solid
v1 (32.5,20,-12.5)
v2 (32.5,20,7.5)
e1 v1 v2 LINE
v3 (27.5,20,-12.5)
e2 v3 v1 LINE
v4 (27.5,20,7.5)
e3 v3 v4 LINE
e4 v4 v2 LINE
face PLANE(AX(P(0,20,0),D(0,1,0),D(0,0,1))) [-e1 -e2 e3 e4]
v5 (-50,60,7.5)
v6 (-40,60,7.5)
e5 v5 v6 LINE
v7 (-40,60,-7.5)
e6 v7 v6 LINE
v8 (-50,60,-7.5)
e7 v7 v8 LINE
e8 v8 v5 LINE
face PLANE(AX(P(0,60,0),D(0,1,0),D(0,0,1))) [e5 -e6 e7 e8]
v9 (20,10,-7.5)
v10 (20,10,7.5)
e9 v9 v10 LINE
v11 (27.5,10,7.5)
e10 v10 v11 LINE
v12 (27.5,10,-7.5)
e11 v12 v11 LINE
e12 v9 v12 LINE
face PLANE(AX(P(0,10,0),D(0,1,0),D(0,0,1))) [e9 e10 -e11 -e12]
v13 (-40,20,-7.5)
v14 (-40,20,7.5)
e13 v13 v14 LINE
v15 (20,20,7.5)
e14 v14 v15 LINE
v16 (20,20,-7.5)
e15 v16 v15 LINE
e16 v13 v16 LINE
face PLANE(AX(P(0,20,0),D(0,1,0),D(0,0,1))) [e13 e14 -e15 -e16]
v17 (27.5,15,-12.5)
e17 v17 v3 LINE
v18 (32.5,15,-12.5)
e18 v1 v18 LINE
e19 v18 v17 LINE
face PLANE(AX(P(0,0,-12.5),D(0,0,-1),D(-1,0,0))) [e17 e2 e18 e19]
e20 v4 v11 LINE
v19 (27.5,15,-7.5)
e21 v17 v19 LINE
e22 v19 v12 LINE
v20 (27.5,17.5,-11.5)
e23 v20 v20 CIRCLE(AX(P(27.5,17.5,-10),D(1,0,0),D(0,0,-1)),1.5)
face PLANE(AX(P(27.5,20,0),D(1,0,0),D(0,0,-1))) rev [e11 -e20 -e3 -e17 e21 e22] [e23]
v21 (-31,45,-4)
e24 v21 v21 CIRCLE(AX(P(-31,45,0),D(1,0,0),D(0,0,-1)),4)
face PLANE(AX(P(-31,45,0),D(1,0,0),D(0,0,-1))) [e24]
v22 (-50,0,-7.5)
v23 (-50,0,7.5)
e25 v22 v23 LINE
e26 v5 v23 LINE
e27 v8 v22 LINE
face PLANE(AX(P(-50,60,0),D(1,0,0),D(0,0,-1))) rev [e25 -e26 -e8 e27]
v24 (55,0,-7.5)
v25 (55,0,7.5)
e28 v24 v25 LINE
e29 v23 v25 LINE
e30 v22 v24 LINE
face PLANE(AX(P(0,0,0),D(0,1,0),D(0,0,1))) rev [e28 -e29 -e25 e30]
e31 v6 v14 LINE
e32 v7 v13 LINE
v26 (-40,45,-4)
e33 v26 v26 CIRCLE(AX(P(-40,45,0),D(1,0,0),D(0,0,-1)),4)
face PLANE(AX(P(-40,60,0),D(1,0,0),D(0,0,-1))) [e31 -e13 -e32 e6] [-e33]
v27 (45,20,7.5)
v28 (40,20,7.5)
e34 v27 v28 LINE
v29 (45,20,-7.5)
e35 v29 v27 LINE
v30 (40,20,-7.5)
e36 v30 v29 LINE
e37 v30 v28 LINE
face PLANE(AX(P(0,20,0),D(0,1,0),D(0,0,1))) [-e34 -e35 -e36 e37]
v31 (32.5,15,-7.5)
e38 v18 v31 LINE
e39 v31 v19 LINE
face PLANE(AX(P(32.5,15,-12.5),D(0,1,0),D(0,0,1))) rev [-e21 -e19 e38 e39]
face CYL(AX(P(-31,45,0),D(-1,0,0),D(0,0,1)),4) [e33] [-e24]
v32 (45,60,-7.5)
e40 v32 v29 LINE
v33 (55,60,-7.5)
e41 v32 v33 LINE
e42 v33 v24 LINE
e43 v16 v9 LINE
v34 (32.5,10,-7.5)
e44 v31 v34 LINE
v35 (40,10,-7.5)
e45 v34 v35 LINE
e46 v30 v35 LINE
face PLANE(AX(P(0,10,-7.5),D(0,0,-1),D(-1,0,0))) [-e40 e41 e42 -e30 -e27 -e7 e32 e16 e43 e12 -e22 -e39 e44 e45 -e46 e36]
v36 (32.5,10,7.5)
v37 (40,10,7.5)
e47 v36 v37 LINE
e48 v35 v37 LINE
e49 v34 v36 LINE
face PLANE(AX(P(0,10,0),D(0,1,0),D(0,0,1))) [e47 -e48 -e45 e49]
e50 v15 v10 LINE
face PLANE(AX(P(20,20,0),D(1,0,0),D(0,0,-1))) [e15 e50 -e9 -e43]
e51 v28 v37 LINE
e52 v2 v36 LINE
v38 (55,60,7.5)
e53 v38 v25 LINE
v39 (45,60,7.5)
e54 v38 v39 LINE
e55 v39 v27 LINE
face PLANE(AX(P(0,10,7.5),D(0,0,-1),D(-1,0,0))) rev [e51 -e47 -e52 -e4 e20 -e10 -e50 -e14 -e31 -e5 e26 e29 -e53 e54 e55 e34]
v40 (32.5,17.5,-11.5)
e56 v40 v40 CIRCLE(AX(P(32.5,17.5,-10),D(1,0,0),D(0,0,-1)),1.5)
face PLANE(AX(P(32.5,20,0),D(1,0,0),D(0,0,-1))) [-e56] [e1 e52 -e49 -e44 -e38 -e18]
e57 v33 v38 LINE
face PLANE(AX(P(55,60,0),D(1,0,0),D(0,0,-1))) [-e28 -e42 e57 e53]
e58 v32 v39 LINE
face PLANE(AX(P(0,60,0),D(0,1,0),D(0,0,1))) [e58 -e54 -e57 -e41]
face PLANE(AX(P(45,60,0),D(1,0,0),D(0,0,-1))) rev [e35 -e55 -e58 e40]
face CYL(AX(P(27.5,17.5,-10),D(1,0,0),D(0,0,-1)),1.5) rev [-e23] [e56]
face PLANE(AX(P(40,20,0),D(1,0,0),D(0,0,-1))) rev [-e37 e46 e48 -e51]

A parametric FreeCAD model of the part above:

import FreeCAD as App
import Part
import Sketcher

V = App.Vector
Q = App.Units.Quantity

doc = App.newDocument("Part")
body = doc.addObject("PartDesign::Body", "Body")

# Sketch on XZ plane
sketch1 = body.newObject("Sketcher::SketchObject", "Sketch")
sketch1.AttachmentSupport = (doc.getObject("XZ_Plane"), [""])
sketch1.MapMode = "FlatFace"
sketch1.addGeometry([
    Part.LineSegment(V(32, -8, 0), V(32, 8, 0)),
    Part.LineSegment(V(32, 8, 0), V(40, 8, 0)),
    Part.LineSegment(V(40, 8, 0), V(40, -8, 0)),
    Part.LineSegment(V(40, -8, 0), V(32, -8, 0)),
], False)
sketch1.addConstraint([
    Sketcher.Constraint("Coincident", 0, 2, 1, 1),
    Sketcher.Constraint("Coincident", 1, 2, 2, 1),
    Sketcher.Constraint("Coincident", 2, 2, 3, 1),
    Sketcher.Constraint("Coincident", 3, 2, 0, 1),
    Sketcher.Constraint("Vertical", 0),
    Sketcher.Constraint("Horizontal", 1),
    Sketcher.Constraint("Vertical", 2),
    Sketcher.Constraint("Horizontal", 3),
    Sketcher.Constraint("DistanceY", 0, 1, 0, 2, Q("15 mm")),
    Sketcher.Constraint("DistanceX", 1, 1, 1, 2, Q("7.5 mm")),
    Sketcher.Constraint("DistanceX", -1, 1, 1, 2, Q("40 mm")),
    Sketcher.Constraint("DistanceY", -1, 1, 0, 2, Q("7.5 mm")),
])
pad1 = body.newObject("PartDesign::Pad", "Pad")
pad1.Profile = sketch1
pad1.Length = 10
pad1.Reversed = True
body2 = doc.addObject("PartDesign::Body", "Body001")

# Sketch on XZ plane
sketch2 = body2.newObject("Sketcher::SketchObject", "Sketch001")
sketch2.AttachmentSupport = (doc.getObject("XZ_Plane001"), [""])
sketch2.MapMode = "FlatFace"
sketch2.addGeometry([
    Part.LineSegment(V(20, -8, 0), V(20, 8, 0)),
    Part.LineSegment(V(20, 8, 0), V(28, 8, 0)),
    Part.LineSegment(V(28, 8, 0), V(28, -8, 0)),
    Part.LineSegment(V(28, -8, 0), V(20, -8, 0)),
], False)
sketch2.addConstraint([
    Sketcher.Constraint("Coincident", 0, 2, 1, 1),
    Sketcher.Constraint("Coincident", 1, 2, 2, 1),
    Sketcher.Constraint("Coincident", 2, 2, 3, 1),
    Sketcher.Constraint("Coincident", 3, 2, 0, 1),
    Sketcher.Constraint("Vertical", 0),
    Sketcher.Constraint("Horizontal", 1),
    Sketcher.Constraint("Vertical", 2),
    Sketcher.Constraint("Horizontal", 3),
    Sketcher.Constraint("DistanceY", 0, 1, 0, 2, Q("15 mm")),
    Sketcher.Constraint("DistanceX", 1, 1, 1, 2, Q("7.5 mm")),
    Sketcher.Constraint("DistanceX", -1, 1, 0, 2, Q("20 mm")),
    Sketcher.Constraint("DistanceY", -1, 1, 0, 2, Q("7.5 mm")),
])
pad2 = body2.newObject("PartDesign::Pad", "Pad001")
pad2.Profile = sketch2
pad2.Length = 10
pad2.Reversed = True
body.AllowCompound = True
doc.recompute()

boolean = body.newObject("PartDesign::Boolean", "Boolean")
boolean.Type = "Fuse"
boolean.addObjects([body2])

# Sketch on XZ plane
sketch3 = body.newObject("Sketcher::SketchObject", "Sketch002")
sketch3.AttachmentSupport = (doc.getObject("XZ_Plane"), [""])
sketch3.MapMode = "FlatFace"
sketch3.addGeometry([
    Part.LineSegment(V(28, -8, 0), V(28, 8, 0)),  # 0
    Part.LineSegment(V(28, 8, 0), V(32, 8, 0)),  # 1
    Part.LineSegment(V(32, 8, 0), V(32, -8, 0)),  # 2
    Part.LineSegment(V(32, -8, 0), V(28, -8, 0)),  # 3
    Part.LineSegment(V(-40, -8, 0), V(-40, 8, 0)),  # 4
    Part.LineSegment(V(-40, 8, 0), V(20, 8, 0)),  # 5
    Part.LineSegment(V(20, 8, 0), V(20, -8, 0)),  # 6
    Part.LineSegment(V(20, -8, 0), V(-40, -8, 0)),  # 7
    Part.LineSegment(V(40, -8, 0), V(40, 8, 0)),  # 8
    Part.LineSegment(V(40, 8, 0), V(45, 8, 0)),  # 9
    Part.LineSegment(V(45, 8, 0), V(45, -8, 0)),  # 10
    Part.LineSegment(V(45, -8, 0), V(40, -8, 0)),  # 11
], False)
sketch3.addConstraint([
    Sketcher.Constraint("Coincident", 0, 2, 1, 1),
    Sketcher.Constraint("Coincident", 1, 2, 2, 1),
    Sketcher.Constraint("Coincident", 2, 2, 3, 1),
    Sketcher.Constraint("Coincident", 3, 2, 0, 1),
    Sketcher.Constraint("Coincident", 4, 2, 5, 1),
    Sketcher.Constraint("Coincident", 5, 2, 6, 1),
    Sketcher.Constraint("Coincident", 6, 2, 7, 1),
    Sketcher.Constraint("Coincident", 7, 2, 4, 1),
    Sketcher.Constraint("Coincident", 8, 2, 9, 1),
    Sketcher.Constraint("Coincident", 9, 2, 10, 1),
    Sketcher.Constraint("Coincident", 10, 2, 11, 1),
    Sketcher.Constraint("Coincident", 11, 2, 8, 1),
    Sketcher.Constraint("Vertical", 0),
    Sketcher.Constraint("Horizontal", 1),
    Sketcher.Constraint("Vertical", 2),
    Sketcher.Constraint("Horizontal", 3),
    Sketcher.Constraint("Vertical", 4),
    Sketcher.Constraint("Horizontal", 5),
    Sketcher.Constraint("Vertical", 6),
    Sketcher.Constraint("Horizontal", 7),
    Sketcher.Constraint("Vertical", 8),
    Sketcher.Constraint("Horizontal", 9),
    Sketcher.Constraint("Vertical", 10),
    Sketcher.Constraint("Horizontal", 11),
    Sketcher.Constraint("Symmetric", 7, 2, 8, 2, -1, 1),
    Sketcher.Constraint("Horizontal", 1, 2, 4, 2),
    Sketcher.Constraint("Horizontal", 3, 2, 6, 2),
    Sketcher.Constraint("Horizontal", 5, 2, 8, 2),
    Sketcher.Constraint("Horizontal", 7, 2, 10, 2),
    Sketcher.Constraint("Equal", 3, 9),
    Sketcher.Constraint("DistanceX", 1, 1, 1, 2, Q("5 mm")),
    Sketcher.Constraint("DistanceX", 5, 1, 5, 2, Q("60 mm")),
    Sketcher.Constraint("DistanceY", 0, 1, 0, 2, Q("15 mm")),
    Sketcher.Constraint("DistanceX", 4, 2, -1, 1, Q("40 mm")),
    Sketcher.Constraint("DistanceX", -1, 1, 0, 2, Q("27.5 mm")),
])
pad3 = body.newObject("PartDesign::Pad", "Pad002")
pad3.Profile = sketch3
pad3.Length = 20
pad3.Reversed = True

# Sketch on XY plane
sketch4 = body.newObject("Sketcher::SketchObject", "Sketch003")
sketch4.AttachmentSupport = (doc.getObject("XY_Plane"), [""])
sketch4.MapMode = "FlatFace"
sketch4.AttachmentOffset = App.Placement(V(0, 0, -7.5), App.Rotation())
sketch4.addGeometry([
    Part.LineSegment(V(32, 20, 0), V(32, 15, 0)),
    Part.LineSegment(V(32, 15, 0), V(28, 15, 0)),
    Part.LineSegment(V(28, 15, 0), V(28, 20, 0)),
    Part.LineSegment(V(28, 20, 0), V(32, 20, 0)),
], False)
sketch4.addConstraint([
    Sketcher.Constraint("Coincident", 0, 2, 1, 1),
    Sketcher.Constraint("Coincident", 1, 2, 2, 1),
    Sketcher.Constraint("Coincident", 2, 2, 3, 1),
    Sketcher.Constraint("Coincident", 3, 2, 0, 1),
    Sketcher.Constraint("Vertical", 0),
    Sketcher.Constraint("Horizontal", 1),
    Sketcher.Constraint("Vertical", 2),
    Sketcher.Constraint("Horizontal", 3),
    Sketcher.Constraint("Equal", 3, 0),
    Sketcher.Constraint("DistanceX", 1, 2, 1, 1, Q("5 mm")),
    Sketcher.Constraint("DistanceY", -1, 1, 0, 2, Q("15 mm")),
    Sketcher.Constraint("DistanceX", -1, 1, 0, 2, Q("32.5 mm")),
])
pad4 = body.newObject("PartDesign::Pad", "Pad003")
pad4.Profile = sketch4
pad4.Length = 5
pad4.Reversed = True

# Sketch on XZ plane
sketch5 = body.newObject("Sketcher::SketchObject", "Sketch004")
sketch5.AttachmentSupport = (doc.getObject("XZ_Plane"), [""])
sketch5.MapMode = "FlatFace"
sketch5.addGeometry([
    Part.LineSegment(V(45, -8, 0), V(45, 8, 0)),  # 0
    Part.LineSegment(V(45, 8, 0), V(55, 8, 0)),  # 1
    Part.LineSegment(V(55, 8, 0), V(55, -8, 0)),  # 2
    Part.LineSegment(V(55, -8, 0), V(45, -8, 0)),  # 3
    Part.LineSegment(V(-50, -8, 0), V(-50, 8, 0)),  # 4
    Part.LineSegment(V(-50, 8, 0), V(-40, 8, 0)),  # 5
    Part.LineSegment(V(-40, 8, 0), V(-40, -8, 0)),  # 6
    Part.LineSegment(V(-40, -8, 0), V(-50, -8, 0)),  # 7
], False)
sketch5.addConstraint([
    Sketcher.Constraint("Coincident", 0, 2, 1, 1),
    Sketcher.Constraint("Coincident", 1, 2, 2, 1),
    Sketcher.Constraint("Coincident", 2, 2, 3, 1),
    Sketcher.Constraint("Coincident", 3, 2, 0, 1),
    Sketcher.Constraint("Coincident", 4, 2, 5, 1),
    Sketcher.Constraint("Coincident", 5, 2, 6, 1),
    Sketcher.Constraint("Coincident", 6, 2, 7, 1),
    Sketcher.Constraint("Coincident", 7, 2, 4, 1),
    Sketcher.Constraint("Vertical", 0),
    Sketcher.Constraint("Horizontal", 1),
    Sketcher.Constraint("Vertical", 2),
    Sketcher.Constraint("Horizontal", 3),
    Sketcher.Constraint("Vertical", 4),
    Sketcher.Constraint("Horizontal", 5),
    Sketcher.Constraint("Vertical", 6),
    Sketcher.Constraint("Horizontal", 7),
    Sketcher.Constraint("Horizontal", 1, 2, 4, 2),
    Sketcher.Constraint("Horizontal", 3, 2, 6, 2),
    Sketcher.Constraint("Equal", 3, 5),
    Sketcher.Constraint("DistanceX", 1, 1, 1, 2, Q("10 mm")),
    Sketcher.Constraint("DistanceY", 0, 1, 0, 2, Q("15 mm")),
    Sketcher.Constraint("DistanceX", -1, 1, 0, 2, Q("45 mm")),
    Sketcher.Constraint("DistanceX", 4, 2, -1, 1, Q("50 mm")),
    Sketcher.Constraint("DistanceY", -1, 1, 0, 2, Q("7.5 mm")),
])
pad5 = body.newObject("PartDesign::Pad", "Pad004")
pad5.Profile = sketch5
pad5.Length = 60
pad5.Reversed = True

# Sketch on YZ plane
sketch6 = body.newObject("Sketcher::SketchObject", "Sketch005")
sketch6.AttachmentSupport = (doc.getObject("YZ_Plane"), [""])
sketch6.MapMode = "FlatFace"
sketch6.AttachmentOffset = App.Placement(V(0, 0, -40), App.Rotation())
sketch6.addGeometry(Part.Circle(V(45, 0, 0), V(0, 0, 1), 4), False)
sketch6.addConstraint([
    Sketcher.Constraint("PointOnObject", 0, 3, -1),
    Sketcher.Constraint("Diameter", 0, Q("8 mm")),
    Sketcher.Constraint("DistanceX", -1, 1, 0, 3, Q("45 mm")),
])
pad6 = body.newObject("PartDesign::Pad", "Pad005")
pad6.Profile = sketch6
pad6.Length = 9

# Sketch on YZ plane
sketch7 = body.newObject("Sketcher::SketchObject", "Sketch006")
sketch7.AttachmentSupport = (doc.getObject("YZ_Plane"), [""])
sketch7.MapMode = "FlatFace"
sketch7.AttachmentOffset = App.Placement(V(0, 0, 32.5), App.Rotation())
sketch7.addGeometry(Part.Circle(V(17.5, -10, 0), V(0, 0, 1), 1.5), False)
sketch7.addConstraint([
    Sketcher.Constraint("Diameter", 0, Q("3 mm")),
    Sketcher.Constraint("DistanceY", 0, 3, -1, 1, Q("10 mm")),
    Sketcher.Constraint("DistanceX", -1, 1, 0, 3, Q("17.5 mm")),
])
pocket1 = body.newObject("PartDesign::Pocket", "Pocket")
pocket1.Profile = sketch7
pocket1.Length = 5

doc.recompute()
